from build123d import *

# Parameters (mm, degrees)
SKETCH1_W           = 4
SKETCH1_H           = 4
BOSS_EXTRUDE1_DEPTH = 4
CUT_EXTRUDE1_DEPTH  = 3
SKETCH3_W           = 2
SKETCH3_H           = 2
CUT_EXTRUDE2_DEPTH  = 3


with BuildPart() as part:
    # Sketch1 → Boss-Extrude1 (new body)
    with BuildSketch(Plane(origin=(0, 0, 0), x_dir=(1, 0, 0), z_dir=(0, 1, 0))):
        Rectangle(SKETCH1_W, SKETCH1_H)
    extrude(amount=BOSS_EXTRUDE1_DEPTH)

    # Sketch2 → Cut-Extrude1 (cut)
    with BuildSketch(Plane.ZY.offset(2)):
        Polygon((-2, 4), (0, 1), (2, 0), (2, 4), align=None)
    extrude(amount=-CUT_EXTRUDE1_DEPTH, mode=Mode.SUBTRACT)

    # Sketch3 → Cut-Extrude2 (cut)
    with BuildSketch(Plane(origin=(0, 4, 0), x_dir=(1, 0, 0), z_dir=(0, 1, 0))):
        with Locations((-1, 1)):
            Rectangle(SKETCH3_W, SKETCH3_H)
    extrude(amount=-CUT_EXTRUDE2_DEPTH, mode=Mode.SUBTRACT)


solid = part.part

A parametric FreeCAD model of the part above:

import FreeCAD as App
import Part
import Sketcher
Q = App.Units.Quantity

doc = App.newDocument("Part")
body = doc.addObject("PartDesign::Body", "Body")

sketch1 = body.newObject("Sketcher::SketchObject", "Sketch")
sketch1.AttachmentSupport = (doc.getObject("XZ_Plane"), [""])
sketch1.MapMode = "FlatFace"
sketch1.addGeometry([
    Part.LineSegment(App.Vector(-2, -2, 0), App.Vector(-2, 2, 0)),
    Part.LineSegment(App.Vector(-2, 2, 0), App.Vector(2, 2, 0)),
    Part.LineSegment(App.Vector(2, 2, 0), App.Vector(2, -2, 0)),
    Part.LineSegment(App.Vector(2, -2, 0), App.Vector(-2, -2, 0)),
], False)
sketch1.addConstraint([
    Sketcher.Constraint("Coincident", 0, 2, 1, 1),
    Sketcher.Constraint("Coincident", 1, 2, 2, 1),
    Sketcher.Constraint("Coincident", 2, 2, 3, 1),
    Sketcher.Constraint("Coincident", 3, 2, 0, 1),
    Sketcher.Constraint("Vertical", 0),
    Sketcher.Constraint("Horizontal", 1),
    Sketcher.Constraint("Vertical", 2),
    Sketcher.Constraint("Horizontal", 3),
    Sketcher.Constraint("Symmetric", 0, 2, 2, 2, -1, 1),
    Sketcher.Constraint("Equal", 3, 0),
    Sketcher.Constraint("DistanceX", 1, 1, 1, 2, Q("4 mm")),
])
pad1 = body.newObject("PartDesign::Pad", "Pad")
pad1.Profile = sketch1
pad1.Length = 4
pad1.Reversed = True

sketch2 = body.newObject("Sketcher::SketchObject", "Sketch001")
sketch2.AttachmentSupport = (doc.getObject("YZ_Plane"), [""])
sketch2.MapMode = "FlatFace"
sketch2.AttachmentOffset = App.Placement(App.Vector(0, 0, -2), App.Rotation())
sketch2.addGeometry([
    Part.LineSegment(App.Vector(4, -2, 0), App.Vector(1, 0, 0)),
    Part.LineSegment(App.Vector(1, 0, 0), App.Vector(0, 2, 0)),
    Part.LineSegment(App.Vector(0, 2, 0), App.Vector(4, 2, 0)),
    Part.LineSegment(App.Vector(4, 2, 0), App.Vector(4, -2, 0)),
], False)
sketch2.addConstraint([
    Sketcher.Constraint("Coincident", 0, 2, 1, 1),
    Sketcher.Constraint("Coincident", 1, 2, 2, 1),
    Sketcher.Constraint("Coincident", 2, 2, 3, 1),
    Sketcher.Constraint("Coincident", 3, 2, 0, 1),
    Sketcher.Constraint("Horizontal", 2),
    Sketcher.Constraint("Vertical", 3),
    Sketcher.Constraint("PointOnObject", 0, 2, -1),
    Sketcher.Constraint("PointOnObject", 1, 2, -2),
    Sketcher.Constraint("Equal", 2, 3),
    Sketcher.Constraint("DistanceX", 2, 1, 2, 2, Q("4 mm")),
    Sketcher.Constraint("DistanceX", -1, 1, 0, 2, Q("1 mm")),
    Sketcher.Constraint("DistanceY", -1, 1, 1, 2, Q("2 mm")),
])
pocket1 = body.newObject("PartDesign::Pocket", "Pocket")
pocket1.Profile = sketch2
pocket1.Length = 3
pocket1.Reversed = True

sketch3 = body.newObject("Sketcher::SketchObject", "Sketch002")
sketch3.AttachmentSupport = (doc.getObject("XZ_Plane"), [""])
sketch3.MapMode = "FlatFace"
sketch3.AttachmentOffset = App.Placement(App.Vector(0, 0, -4), App.Rotation())
sketch3.addGeometry([
    Part.LineSegment(App.Vector(-2, -2, 0), App.Vector(-2, 0, 0)),
    Part.LineSegment(App.Vector(-2, 0, 0), App.Vector(0, 0, 0)),
    Part.LineSegment(App.Vector(0, 0, 0), App.Vector(0, -2, 0)),
    Part.LineSegment(App.Vector(0, -2, 0), App.Vector(-2, -2, 0)),
], False)
sketch3.addConstraint([
    Sketcher.Constraint("Coincident", 0, 2, 1, 1),
    Sketcher.Constraint("Coincident", 1, 2, 2, 1),
    Sketcher.Constraint("Coincident", 2, 2, 3, 1),
    Sketcher.Constraint("Coincident", 3, 2, 0, 1),
    Sketcher.Constraint("Vertical", 0),
    Sketcher.Constraint("Horizontal", 1),
    Sketcher.Constraint("Vertical", 2),
    Sketcher.Constraint("Horizontal", 3),
    Sketcher.Constraint("Coincident", 1, 2, -1, 1),
    Sketcher.Constraint("Equal", 3, 0),
    Sketcher.Constraint("DistanceX", 1, 1, 1, 2, Q("2 mm")),
])
pocket2 = body.newObject("PartDesign::Pocket", "Pocket001")
pocket2.Profile = sketch3
pocket2.Length = 3
pocket2.Reversed = True

doc.recompute()
